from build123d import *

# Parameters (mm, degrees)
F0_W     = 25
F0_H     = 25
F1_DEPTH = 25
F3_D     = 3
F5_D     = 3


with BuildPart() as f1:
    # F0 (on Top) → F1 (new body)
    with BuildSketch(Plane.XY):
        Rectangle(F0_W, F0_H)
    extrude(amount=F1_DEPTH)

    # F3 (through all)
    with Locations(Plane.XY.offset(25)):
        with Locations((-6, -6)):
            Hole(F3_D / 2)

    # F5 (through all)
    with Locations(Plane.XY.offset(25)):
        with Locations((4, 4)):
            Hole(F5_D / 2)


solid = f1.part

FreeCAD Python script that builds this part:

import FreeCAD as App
import Part
import Sketcher
from FreeCAD import Vector


def add_polygon(sketch, points):
    """Adds a closed chain of lines whose ends are joined by coincident constraints."""
    first, n = sketch.GeometryCount, len(points)
    for a, b in zip(points, points[1:] + points[:1]):
        sketch.addGeometry(Part.LineSegment(App.Vector(*a, 0), App.Vector(*b, 0)), False)
    for i in range(n):
        sketch.addConstraint(Sketcher.Constraint("Coincident", first + i, 2, first + (i + 1) % n, 1))

doc = App.newDocument("Part")
params = doc.addObject("Spreadsheet::Sheet", "Params")
for row, (alias, value) in enumerate([
    ("sketch1_width", "25 mm"),
    ("pad1_length", "25 mm"),
    ("sketch2_diameter", "3 mm"),
    ("hole_diameter", "3 mm"),
    ("sketch3_diameter", "3 mm"),
    ("hole2_diameter", "3 mm"),
], start=1):
    params.set(f"A{row}", alias)
    params.set(f"B{row}", "=" + value)
    params.setAlias(f"B{row}", alias)

body = doc.addObject("PartDesign::Body", "Body")

sketch1 = body.newObject("Sketcher::SketchObject", "Sketch")
sketch1.AttachmentSupport = (doc.getObject("XY_Plane"), [""])
sketch1.MapMode = "FlatFace"
add_polygon(sketch1, [(-12.5, 12.5), (-12.5, -12.5), (12.5, -12.5), (12.5, 12.5)])
sketch1.addConstraint([
    Sketcher.Constraint("Vertical", 0),
    Sketcher.Constraint("Horizontal", 1),
    Sketcher.Constraint("Vertical", 2),
    Sketcher.Constraint("Horizontal", 3),
    Sketcher.Constraint("Symmetric", 0, 2, 2, 2, -1, 1),
    Sketcher.Constraint("Equal", 3, 0),
    Sketcher.Constraint("DistanceX", 1, 1, 1, 2, 25.0),
])
sketch1.setExpression("Constraints[10]", "Params.sketch1_width")
pad1 = body.newObject("PartDesign::Pad", "Pad")
pad1.Profile = sketch1
pad1.setExpression("Length", "Params.pad1_length")

sketch2 = body.newObject("Sketcher::SketchObject", "Sketch001")
sketch2.AttachmentSupport = (doc.getObject("XY_Plane"), [""])
sketch2.MapMode = "FlatFace"
sketch2.AttachmentOffset = App.Placement(Vector(0, 0, 25), App.Rotation())
sketch2.addGeometry(Part.Circle(Vector(-6, -6, 0), Vector(0, 0, 1), 1.5), False)
sketch2.addConstraint([
    Sketcher.Constraint("Diameter", 0, 3.0),
    Sketcher.Constraint("DistanceX", 0, 3, -1, 1, 6.0),
    Sketcher.Constraint("DistanceY", 0, 3, -1, 1, 6.0),
])
sketch2.setExpression("Constraints[0]", "Params.sketch2_diameter")
doc.recompute()
hole = body.newObject("PartDesign::Hole", "Hole")
hole.Profile = sketch2
hole.ThreadType = "None"
hole.setExpression("Diameter", "Params.hole_diameter")
hole.DepthType = "ThroughAll"

sketch3 = body.newObject("Sketcher::SketchObject", "Sketch002")
sketch3.AttachmentSupport = (doc.getObject("XY_Plane"), [""])
sketch3.MapMode = "FlatFace"
sketch3.AttachmentOffset = App.Placement(Vector(0, 0, 25), App.Rotation())
sketch3.addGeometry(Part.Circle(Vector(4, 4, 0), Vector(0, 0, 1), 1.5), False)
sketch3.addConstraint([
    Sketcher.Constraint("Diameter", 0, 3.0),
    Sketcher.Constraint("DistanceX", -1, 1, 0, 3, 4.0),
    Sketcher.Constraint("DistanceY", -1, 1, 0, 3, 4.0),
])
sketch3.setExpression("Constraints[0]", "Params.sketch3_diameter")
doc.recompute()
hole2 = body.newObject("PartDesign::Hole", "Hole001")
hole2.Profile = sketch3
hole2.ThreadType = "None"
hole2.setExpression("Diameter", "Params.hole2_diameter")
hole2.DepthType = "ThroughAll"

doc.recompute()
